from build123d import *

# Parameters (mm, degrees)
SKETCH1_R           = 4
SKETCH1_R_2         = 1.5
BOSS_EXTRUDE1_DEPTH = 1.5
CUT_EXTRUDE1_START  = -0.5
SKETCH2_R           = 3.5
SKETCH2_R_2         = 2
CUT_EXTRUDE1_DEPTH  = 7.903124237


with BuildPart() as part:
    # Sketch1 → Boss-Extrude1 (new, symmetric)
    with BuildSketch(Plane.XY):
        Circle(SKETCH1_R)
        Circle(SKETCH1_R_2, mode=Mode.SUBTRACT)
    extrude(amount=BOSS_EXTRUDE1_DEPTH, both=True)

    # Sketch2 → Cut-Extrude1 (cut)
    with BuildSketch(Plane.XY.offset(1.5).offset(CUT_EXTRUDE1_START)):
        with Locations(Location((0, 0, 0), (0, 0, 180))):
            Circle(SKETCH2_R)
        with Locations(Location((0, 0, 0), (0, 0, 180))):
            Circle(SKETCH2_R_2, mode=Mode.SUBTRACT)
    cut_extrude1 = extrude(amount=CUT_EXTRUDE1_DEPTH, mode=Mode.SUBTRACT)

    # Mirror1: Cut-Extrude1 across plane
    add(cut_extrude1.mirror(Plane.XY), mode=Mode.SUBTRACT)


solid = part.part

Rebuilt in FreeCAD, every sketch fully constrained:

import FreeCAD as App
import Part
import Sketcher

V = App.Vector

doc = App.newDocument("Part")
body = doc.addObject("PartDesign::Body", "Body")

# Sketch on XY plane
sketch1 = body.newObject("Sketcher::SketchObject", "Sketch")
sketch1.AttachmentSupport = (doc.getObject("XY_Plane"), [""])
sketch1.MapMode = "FlatFace"
sketch1.addGeometry([
    Part.Circle(V(0, 0, 0), V(0, 0, 1), 4),
    Part.Circle(V(0, 0, 0), V(0, 0, 1), 1.5),
], False)
sketch1.addConstraint([
    Sketcher.Constraint("Coincident", 0, 3, -1, 1),
    Sketcher.Constraint("Coincident", 1, 3, -1, 1),
    Sketcher.Constraint("Diameter", 0, 8.0),
    Sketcher.Constraint("Diameter", 1, 3.0),
])
pad1 = body.newObject("PartDesign::Pad", "Pad")
pad1.Profile = sketch1
pad1.Length = 3
pad1.Midplane = True

# Sketch on XY plane
sketch2 = body.newObject("Sketcher::SketchObject", "Sketch001")
sketch2.AttachmentSupport = (doc.getObject("XY_Plane"), [""])
sketch2.MapMode = "FlatFace"
sketch2.AttachmentOffset = App.Placement(V(0, 0, 1), App.Rotation())
sketch2.addGeometry([
    Part.Circle(V(0, 0, 0), V(0, 0, 1), 3.5),
    Part.Circle(V(0, 0, 0), V(0, 0, 1), 2),
], False)
sketch2.addConstraint([
    Sketcher.Constraint("Coincident", 0, 3, -1, 1),
    Sketcher.Constraint("Coincident", 1, 3, -1, 1),
    Sketcher.Constraint("Diameter", 0, 7.0),
    Sketcher.Constraint("Diameter", 1, 4.0),
])
pocket1 = body.newObject("PartDesign::Pocket", "Pocket")
pocket1.Profile = sketch2
pocket1.Length = 7.903124
pocket1.Reversed = True
doc.recompute()

mirrored = body.newObject("PartDesign::Mirrored", "Mirrored")
mirrored.Originals = [pocket1]
mirrored.MirrorPlane = (doc.getObject("XY_Plane"), [""])
body.Tip = mirrored

doc.recompute()
